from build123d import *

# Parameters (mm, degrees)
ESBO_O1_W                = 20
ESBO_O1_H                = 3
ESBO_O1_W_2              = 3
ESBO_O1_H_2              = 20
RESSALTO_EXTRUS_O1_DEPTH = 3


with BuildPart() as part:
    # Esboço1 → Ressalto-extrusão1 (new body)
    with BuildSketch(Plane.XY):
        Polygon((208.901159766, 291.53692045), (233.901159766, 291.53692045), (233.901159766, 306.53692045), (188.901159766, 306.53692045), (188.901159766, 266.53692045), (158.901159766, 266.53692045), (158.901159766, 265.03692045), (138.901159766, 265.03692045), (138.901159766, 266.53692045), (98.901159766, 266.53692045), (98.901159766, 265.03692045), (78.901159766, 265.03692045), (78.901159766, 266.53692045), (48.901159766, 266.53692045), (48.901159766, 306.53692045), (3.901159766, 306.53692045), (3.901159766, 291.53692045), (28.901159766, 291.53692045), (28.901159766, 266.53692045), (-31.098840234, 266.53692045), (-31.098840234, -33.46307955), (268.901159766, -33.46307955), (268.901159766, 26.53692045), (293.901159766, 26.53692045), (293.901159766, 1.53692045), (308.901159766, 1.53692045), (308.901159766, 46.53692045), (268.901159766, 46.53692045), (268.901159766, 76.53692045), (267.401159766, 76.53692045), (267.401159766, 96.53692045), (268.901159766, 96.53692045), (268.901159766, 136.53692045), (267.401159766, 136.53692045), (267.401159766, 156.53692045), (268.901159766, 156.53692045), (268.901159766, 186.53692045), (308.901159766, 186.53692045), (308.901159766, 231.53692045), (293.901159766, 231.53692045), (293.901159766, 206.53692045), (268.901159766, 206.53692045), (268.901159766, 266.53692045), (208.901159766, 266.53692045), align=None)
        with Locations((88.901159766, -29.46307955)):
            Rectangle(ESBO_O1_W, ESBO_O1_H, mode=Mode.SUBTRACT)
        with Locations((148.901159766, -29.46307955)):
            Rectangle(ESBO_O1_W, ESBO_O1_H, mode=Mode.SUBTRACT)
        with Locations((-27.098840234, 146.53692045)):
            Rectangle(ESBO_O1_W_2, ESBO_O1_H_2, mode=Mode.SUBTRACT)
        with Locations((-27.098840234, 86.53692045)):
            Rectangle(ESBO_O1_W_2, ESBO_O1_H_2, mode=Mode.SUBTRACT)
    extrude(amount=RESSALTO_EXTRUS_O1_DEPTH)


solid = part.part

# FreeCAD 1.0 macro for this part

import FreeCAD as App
import Part
import Sketcher
Q = App.Units.Quantity

doc = App.newDocument("Part")
params = doc.addObject("Spreadsheet::Sheet", "Params")
for row, (alias, value) in enumerate([
    ("sketch1_width", "25 mm"),
    ("sketch1_width2", "45 mm"),
    ("sketch1_width3", "30 mm"),
    ("sketch1_width4", "20 mm"),
    ("sketch1_width5", "40 mm"),
    ("pad1_length", "3 mm"),
], start=1):
    params.set(f"A{row}", alias)
    params.set(f"B{row}", "=" + value)
    params.setAlias(f"B{row}", alias)

body = doc.addObject("PartDesign::Body", "Body")

sketch1 = body.newObject("Sketcher::SketchObject", "Sketch")
sketch1.AttachmentSupport = (doc.getObject("XY_Plane"), [""])
sketch1.MapMode = "FlatFace"
sketch1.addGeometry(Part.LineSegment(App.Vector(208.9, 291.5, 0), App.Vector(233.9, 291.5, 0)), False)
sketch1.addGeometry(Part.LineSegment(App.Vector(233.9, 291.5, 0), App.Vector(233.9, 306.5, 0)), False)
sketch1.addGeometry(Part.LineSegment(App.Vector(233.9, 306.5, 0), App.Vector(188.9, 306.5, 0)), False)
sketch1.addGeometry(Part.LineSegment(App.Vector(188.9, 306.5, 0), App.Vector(188.9, 266.5, 0)), False)
sketch1.addGeometry(Part.LineSegment(App.Vector(188.9, 266.5, 0), App.Vector(158.9, 266.5, 0)), False)
sketch1.addGeometry(Part.LineSegment(App.Vector(158.9, 266.5, 0), App.Vector(158.9, 265, 0)), False)
sketch1.addGeometry(Part.LineSegment(App.Vector(158.9, 265, 0), App.Vector(138.9, 265, 0)), False)
sketch1.addGeometry(Part.LineSegment(App.Vector(138.9, 265, 0), App.Vector(138.9, 266.5, 0)), False)
sketch1.addGeometry(Part.LineSegment(App.Vector(138.9, 266.5, 0), App.Vector(98.9, 266.5, 0)), False)
sketch1.addGeometry(Part.LineSegment(App.Vector(98.9, 266.5, 0), App.Vector(98.9, 265, 0)), False)
sketch1.addGeometry(Part.LineSegment(App.Vector(98.9, 265, 0), App.Vector(78.9, 265, 0)), False)
sketch1.addGeometry(Part.LineSegment(App.Vector(78.9, 265, 0), App.Vector(78.9, 266.5, 0)), False)
sketch1.addGeometry(Part.LineSegment(App.Vector(78.9, 266.5, 0), App.Vector(48.9, 266.5, 0)), False)
sketch1.addGeometry(Part.LineSegment(App.Vector(48.9, 266.5, 0), App.Vector(48.9, 306.5, 0)), False)
sketch1.addGeometry(Part.LineSegment(App.Vector(48.9, 306.5, 0), App.Vector(3.9, 306.5, 0)), False)
sketch1.addGeometry(Part.LineSegment(App.Vector(3.9, 306.5, 0), App.Vector(3.9, 291.5, 0)), False)
sketch1.addGeometry(Part.LineSegment(App.Vector(3.9, 291.5, 0), App.Vector(28.9, 291.5, 0)), False)
sketch1.addGeometry(Part.LineSegment(App.Vector(28.9, 291.5, 0), App.Vector(28.9, 266.5, 0)), False)
sketch1.addGeometry(Part.LineSegment(App.Vector(28.9, 266.5, 0), App.Vector(-31.1, 266.5, 0)), False)
sketch1.addGeometry(Part.LineSegment(App.Vector(-31.1, 266.5, 0), App.Vector(-31.1, -33.5, 0)), False)
sketch1.addGeometry(Part.LineSegment(App.Vector(-31.1, -33.5, 0), App.Vector(268.9, -33.5, 0)), False)
sketch1.addGeometry(Part.LineSegment(App.Vector(268.9, -33.5, 0), App.Vector(268.9, 26.5, 0)), False)
sketch1.addGeometry(Part.LineSegment(App.Vector(268.9, 26.5, 0), App.Vector(293.9, 26.5, 0)), False)
sketch1.addGeometry(Part.LineSegment(App.Vector(293.9, 26.5, 0), App.Vector(293.9, 1.5, 0)), False)
sketch1.addGeometry(Part.LineSegment(App.Vector(293.9, 1.5, 0), App.Vector(308.9, 1.5, 0)), False)
sketch1.addGeometry(Part.LineSegment(App.Vector(308.9, 1.5, 0), App.Vector(308.9, 46.5, 0)), False)
sketch1.addGeometry(Part.LineSegment(App.Vector(308.9, 46.5, 0), App.Vector(268.9, 46.5, 0)), False)
sketch1.addGeometry(Part.LineSegment(App.Vector(268.9, 46.5, 0), App.Vector(268.9, 76.5, 0)), False)
sketch1.addGeometry(Part.LineSegment(App.Vector(268.9, 76.5, 0), App.Vector(267.4, 76.5, 0)), False)
sketch1.addGeometry(Part.LineSegment(App.Vector(267.4, 76.5, 0), App.Vector(267.4, 96.5, 0)), False)
sketch1.addGeometry(Part.LineSegment(App.Vector(267.4, 96.5, 0), App.Vector(268.9, 96.5, 0)), False)
sketch1.addGeometry(Part.LineSegment(App.Vector(268.9, 96.5, 0), App.Vector(268.9, 136.5, 0)), False)
sketch1.addGeometry(Part.LineSegment(App.Vector(268.9, 136.5, 0), App.Vector(267.4, 136.5, 0)), False)
sketch1.addGeometry(Part.LineSegment(App.Vector(267.4, 136.5, 0), App.Vector(267.4, 156.5, 0)), False)
sketch1.addGeometry(Part.LineSegment(App.Vector(267.4, 156.5, 0), App.Vector(268.9, 156.5, 0)), False)
sketch1.addGeometry(Part.LineSegment(App.Vector(268.9, 156.5, 0), App.Vector(268.9, 186.5, 0)), False)
sketch1.addGeometry(Part.LineSegment(App.Vector(268.9, 186.5, 0), App.Vector(308.9, 186.5, 0)), False)
sketch1.addGeometry(Part.LineSegment(App.Vector(308.9, 186.5, 0), App.Vector(308.9, 231.5, 0)), False)
sketch1.addGeometry(Part.LineSegment(App.Vector(308.9, 231.5, 0), App.Vector(293.9, 231.5, 0)), False)
sketch1.addGeometry(Part.LineSegment(App.Vector(293.9, 231.5, 0), App.Vector(293.9, 206.5, 0)), False)
sketch1.addGeometry(Part.LineSegment(App.Vector(293.9, 206.5, 0), App.Vector(268.9, 206.5, 0)), False)
sketch1.addGeometry(Part.LineSegment(App.Vector(268.9, 206.5, 0), App.Vector(268.9, 266.5, 0)), False)
sketch1.addGeometry(Part.LineSegment(App.Vector(268.9, 266.5, 0), App.Vector(208.9, 266.5, 0)), False)
sketch1.addGeometry(Part.LineSegment(App.Vector(208.9, 266.5, 0), App.Vector(208.9, 291.5, 0)), False)
sketch1.addGeometry(Part.LineSegment(App.Vector(98.9, -31, 0), App.Vector(78.9, -31, 0)), False)
sketch1.addGeometry(Part.LineSegment(App.Vector(78.9, -31, 0), App.Vector(78.9, -28, 0)), False)
sketch1.addGeometry(Part.LineSegment(App.Vector(78.9, -28, 0), App.Vector(98.9, -28, 0)), False)
sketch1.addGeometry(Part.LineSegment(App.Vector(98.9, -28, 0), App.Vector(98.9, -31, 0)), False)
sketch1.addGeometry(Part.LineSegment(App.Vector(158.9, -31, 0), App.Vector(138.9, -31, 0)), False)
sketch1.addGeometry(Part.LineSegment(App.Vector(138.9, -31, 0), App.Vector(138.9, -28, 0)), False)
sketch1.addGeometry(Part.LineSegment(App.Vector(138.9, -28, 0), App.Vector(158.9, -28, 0)), False)
sketch1.addGeometry(Part.LineSegment(App.Vector(158.9, -28, 0), App.Vector(158.9, -31, 0)), False)
sketch1.addGeometry(Part.LineSegment(App.Vector(-25.6, 76.5, 0), App.Vector(-28.6, 76.5, 0)), False)
sketch1.addGeometry(Part.LineSegment(App.Vector(-28.6, 76.5, 0), App.Vector(-28.6, 96.5, 0)), False)
sketch1.addGeometry(Part.LineSegment(App.Vector(-28.6, 96.5, 0), App.Vector(-25.6, 96.5, 0)), False)
sketch1.addGeometry(Part.LineSegment(App.Vector(-25.6, 96.5, 0), App.Vector(-25.6, 76.5, 0)), False)
sketch1.addGeometry(Part.LineSegment(App.Vector(-25.6, 136.5, 0), App.Vector(-28.6, 136.5, 0)), False)
sketch1.addGeometry(Part.LineSegment(App.Vector(-28.6, 136.5, 0), App.Vector(-28.6, 156.5, 0)), False)
sketch1.addGeometry(Part.LineSegment(App.Vector(-28.6, 156.5, 0), App.Vector(-25.6, 156.5, 0)), False)
sketch1.addGeometry(Part.LineSegment(App.Vector(-25.6, 156.5, 0), App.Vector(-25.6, 136.5, 0)), False)
sketch1.addConstraint(Sketcher.Constraint("Coincident", 0, 2, 1, 1))
sketch1.addConstraint(Sketcher.Constraint("Coincident", 1, 2, 2, 1))
sketch1.addConstraint(Sketcher.Constraint("Coincident", 2, 2, 3, 1))
sketch1.addConstraint(Sketcher.Constraint("Coincident", 3, 2, 4, 1))
sketch1.addConstraint(Sketcher.Constraint("Coincident", 4, 2, 5, 1))
sketch1.addConstraint(Sketcher.Constraint("Coincident", 5, 2, 6, 1))
sketch1.addConstraint(Sketcher.Constraint("Coincident", 6, 2, 7, 1))
sketch1.addConstraint(Sketcher.Constraint("Coincident", 7, 2, 8, 1))
sketch1.addConstraint(Sketcher.Constraint("Coincident", 8, 2, 9, 1))
sketch1.addConstraint(Sketcher.Constraint("Coincident", 9, 2, 10, 1))
sketch1.addConstraint(Sketcher.Constraint("Coincident", 10, 2, 11, 1))
sketch1.addConstraint(Sketcher.Constraint("Coincident", 11, 2, 12, 1))
sketch1.addConstraint(Sketcher.Constraint("Coincident", 12, 2, 13, 1))
sketch1.addConstraint(Sketcher.Constraint("Coincident", 13, 2, 14, 1))
sketch1.addConstraint(Sketcher.Constraint("Coincident", 14, 2, 15, 1))
sketch1.addConstraint(Sketcher.Constraint("Coincident", 15, 2, 16, 1))
sketch1.addConstraint(Sketcher.Constraint("Coincident", 16, 2, 17, 1))
sketch1.addConstraint(Sketcher.Constraint("Coincident", 17, 2, 18, 1))
sketch1.addConstraint(Sketcher.Constraint("Coincident", 18, 2, 19, 1))
sketch1.addConstraint(Sketcher.Constraint("Coincident", 19, 2, 20, 1))
sketch1.addConstraint(Sketcher.Constraint("Coincident", 20, 2, 21, 1))
sketch1.addConstraint(Sketcher.Constraint("Coincident", 21, 2, 22, 1))
sketch1.addConstraint(Sketcher.Constraint("Coincident", 22, 2, 23, 1))
sketch1.addConstraint(Sketcher.Constraint("Coincident", 23, 2, 24, 1))
sketch1.addConstraint(Sketcher.Constraint("Coincident", 24, 2, 25, 1))
sketch1.addConstraint(Sketcher.Constraint("Coincident", 25, 2, 26, 1))
sketch1.addConstraint(Sketcher.Constraint("Coincident", 26, 2, 27, 1))
sketch1.addConstraint(Sketcher.Constraint("Coincident", 27, 2, 28, 1))
sketch1.addConstraint(Sketcher.Constraint("Coincident", 28, 2, 29, 1))
sketch1.addConstraint(Sketcher.Constraint("Coincident", 29, 2, 30, 1))
sketch1.addConstraint(Sketcher.Constraint("Coincident", 30, 2, 31, 1))
sketch1.addConstraint(Sketcher.Constraint("Coincident", 31, 2, 32, 1))
sketch1.addConstraint(Sketcher.Constraint("Coincident", 32, 2, 33, 1))
sketch1.addConstraint(Sketcher.Constraint("Coincident", 33, 2, 34, 1))
sketch1.addConstraint(Sketcher.Constraint("Coincident", 34, 2, 35, 1))
sketch1.addConstraint(Sketcher.Constraint("Coincident", 35, 2, 36, 1))
sketch1.addConstraint(Sketcher.Constraint("Coincident", 36, 2, 37, 1))
sketch1.addConstraint(Sketcher.Constraint("Coincident", 37, 2, 38, 1))
sketch1.addConstraint(Sketcher.Constraint("Coincident", 38, 2, 39, 1))
sketch1.addConstraint(Sketcher.Constraint("Coincident", 39, 2, 40, 1))
sketch1.addConstraint(Sketcher.Constraint("Coincident", 40, 2, 41, 1))
sketch1.addConstraint(Sketcher.Constraint("Coincident", 41, 2, 42, 1))
sketch1.addConstraint(Sketcher.Constraint("Coincident", 42, 2, 43, 1))
sketch1.addConstraint(Sketcher.Constraint("Coincident", 43, 2, 0, 1))
sketch1.addConstraint(Sketcher.Constraint("Coincident", 44, 2, 45, 1))
sketch1.addConstraint(Sketcher.Constraint("Coincident", 45, 2, 46, 1))
sketch1.addConstraint(Sketcher.Constraint("Coincident", 46, 2, 47, 1))
sketch1.addConstraint(Sketcher.Constraint("Coincident", 47, 2, 44, 1))
sketch1.addConstraint(Sketcher.Constraint("Coincident", 48, 2, 49, 1))
sketch1.addConstraint(Sketcher.Constraint("Coincident", 49, 2, 50, 1))
sketch1.addConstraint(Sketcher.Constraint("Coincident", 50, 2, 51, 1))
sketch1.addConstraint(Sketcher.Constraint("Coincident", 51, 2, 48, 1))
sketch1.addConstraint(Sketcher.Constraint("Coincident", 52, 2, 53, 1))
sketch1.addConstraint(Sketcher.Constraint("Coincident", 53, 2, 54, 1))
sketch1.addConstraint(Sketcher.Constraint("Coincident", 54, 2, 55, 1))
sketch1.addConstraint(Sketcher.Constraint("Coincident", 55, 2, 52, 1))
sketch1.addConstraint(Sketcher.Constraint("Coincident", 56, 2, 57, 1))
sketch1.addConstraint(Sketcher.Constraint("Coincident", 57, 2, 58, 1))
sketch1.addConstraint(Sketcher.Constraint("Coincident", 58, 2, 59, 1))
sketch1.addConstraint(Sketcher.Constraint("Coincident", 59, 2, 56, 1))
sketch1.addConstraint(Sketcher.Constraint("Horizontal", 0))
sketch1.addConstraint(Sketcher.Constraint("Vertical", 1))
sketch1.addConstraint(Sketcher.Constraint("Horizontal", 2))
sketch1.addConstraint(Sketcher.Constraint("Vertical", 3))
sketch1.addConstraint(Sketcher.Constraint("Horizontal", 4))
sketch1.addConstraint(Sketcher.Constraint("Vertical", 5))
sketch1.addConstraint(Sketcher.Constraint("Horizontal", 6))
sketch1.addConstraint(Sketcher.Constraint("Vertical", 7))
sketch1.addConstraint(Sketcher.Constraint("Horizontal", 8))
sketch1.addConstraint(Sketcher.Constraint("Vertical", 9))
sketch1.addConstraint(Sketcher.Constraint("Horizontal", 10))
sketch1.addConstraint(Sketcher.Constraint("Vertical", 11))
sketch1.addConstraint(Sketcher.Constraint("Horizontal", 12))
sketch1.addConstraint(Sketcher.Constraint("Vertical", 13))
sketch1.addConstraint(Sketcher.Constraint("Horizontal", 14))
sketch1.addConstraint(Sketcher.Constraint("Vertical", 15))
sketch1.addConstraint(Sketcher.Constraint("Horizontal", 16))
sketch1.addConstraint(Sketcher.Constraint("Vertical", 17))
sketch1.addConstraint(Sketcher.Constraint("Horizontal", 18))
sketch1.addConstraint(Sketcher.Constraint("Vertical", 19))
sketch1.addConstraint(Sketcher.Constraint("Horizontal", 20))
sketch1.addConstraint(Sketcher.Constraint("Vertical", 21))
sketch1.addConstraint(Sketcher.Constraint("Horizontal", 22))
sketch1.addConstraint(Sketcher.Constraint("Vertical", 23))
sketch1.addConstraint(Sketcher.Constraint("Horizontal", 24))
sketch1.addConstraint(Sketcher.Constraint("Vertical", 25))
sketch1.addConstraint(Sketcher.Constraint("Horizontal", 26))
sketch1.addConstraint(Sketcher.Constraint("Vertical", 27))
sketch1.addConstraint(Sketcher.Constraint("Horizontal", 28))
sketch1.addConstraint(Sketcher.Constraint("Vertical", 29))
sketch1.addConstraint(Sketcher.Constraint("Horizontal", 30))
sketch1.addConstraint(Sketcher.Constraint("Vertical", 31))
sketch1.addConstraint(Sketcher.Constraint("Horizontal", 32))
sketch1.addConstraint(Sketcher.Constraint("Vertical", 33))
sketch1.addConstraint(Sketcher.Constraint("Horizontal", 34))
sketch1.addConstraint(Sketcher.Constraint("Vertical", 35))
sketch1.addConstraint(Sketcher.Constraint("Horizontal", 36))
sketch1.addConstraint(Sketcher.Constraint("Vertical", 37))
sketch1.addConstraint(Sketcher.Constraint("Horizontal", 38))
sketch1.addConstraint(Sketcher.Constraint("Vertical", 39))
sketch1.addConstraint(Sketcher.Constraint("Horizontal", 40))
sketch1.addConstraint(Sketcher.Constraint("Vertical", 41))
sketch1.addConstraint(Sketcher.Constraint("Horizontal", 42))
sketch1.addConstraint(Sketcher.Constraint("Vertical", 43))
sketch1.addConstraint(Sketcher.Constraint("Horizontal", 44))
sketch1.addConstraint(Sketcher.Constraint("Vertical", 45))
sketch1.addConstraint(Sketcher.Constraint("Horizontal", 46))
sketch1.addConstraint(Sketcher.Constraint("Vertical", 47))
sketch1.addConstraint(Sketcher.Constraint("Horizontal", 48))
sketch1.addConstraint(Sketcher.Constraint("Vertical", 49))
sketch1.addConstraint(Sketcher.Constraint("Horizontal", 50))
sketch1.addConstraint(Sketcher.Constraint("Vertical", 51))
sketch1.addConstraint(Sketcher.Constraint("Horizontal", 52))
sketch1.addConstraint(Sketcher.Constraint("Vertical", 53))
sketch1.addConstraint(Sketcher.Constraint("Horizontal", 54))
sketch1.addConstraint(Sketcher.Constraint("Vertical", 55))
sketch1.addConstraint(Sketcher.Constraint("Horizontal", 56))
sketch1.addConstraint(Sketcher.Constraint("Vertical", 57))
sketch1.addConstraint(Sketcher.Constraint("Horizontal", 58))
sketch1.addConstraint(Sketcher.Constraint("Vertical", 59))
sketch1.addConstraint(Sketcher.Constraint("Horizontal", 4, 2, 7, 2))
sketch1.addConstraint(Sketcher.Constraint("Horizontal", 6, 2, 9, 2))
sketch1.addConstraint(Sketcher.Constraint("Horizontal", 8, 2, 11, 2))
sketch1.addConstraint(Sketcher.Constraint("Horizontal", 2, 2, 13, 2))
sketch1.addConstraint(Sketcher.Constraint("Horizontal", 0, 2, 15, 2))
sketch1.addConstraint(Sketcher.Constraint("Horizontal", 12, 2, 17, 2))
sketch1.addConstraint(Sketcher.Constraint("Horizontal", 18, 2, 41, 2))
sketch1.addConstraint(Sketcher.Constraint("Horizontal", 47, 2, 48, 2))
sketch1.addConstraint(Sketcher.Constraint("Horizontal", 46, 2, 49, 2))
sketch1.addConstraint(Sketcher.Constraint("Horizontal", 28, 2, 52, 2))
sketch1.addConstraint(Sketcher.Constraint("Horizontal", 30, 2, 53, 2))
sketch1.addConstraint(Sketcher.Constraint("Horizontal", 32, 2, 56, 2))
sketch1.addConstraint(Sketcher.Constraint("Horizontal", 34, 2, 57, 2))
sketch1.addConstraint(Sketcher.Constraint("Vertical", 21, 2, 26, 2))
sketch1.addConstraint(Sketcher.Constraint("Vertical", 27, 2, 30, 2))
sketch1.addConstraint(Sketcher.Constraint("Vertical", 29, 2, 32, 2))
sketch1.addConstraint(Sketcher.Constraint("Vertical", 31, 2, 34, 2))
sketch1.addConstraint(Sketcher.Constraint("Vertical", 25, 2, 36, 2))
sketch1.addConstraint(Sketcher.Constraint("Vertical", 23, 2, 38, 2))
sketch1.addConstraint(Sketcher.Constraint("Vertical", 35, 2, 40, 2))
sketch1.addConstraint(Sketcher.Constraint("Vertical", 11, 2, 44, 2))
sketch1.addConstraint(Sketcher.Constraint("Vertical", 9, 2, 46, 2))
sketch1.addConstraint(Sketcher.Constraint("Vertical", 7, 2, 48, 2))
sketch1.addConstraint(Sketcher.Constraint("Vertical", 5, 2, 50, 2))
sketch1.addConstraint(Sketcher.Constraint("Vertical", 53, 2, 56, 2))
sketch1.addConstraint(Sketcher.Constraint("Vertical", 55, 2, 58, 2))
sketch1.addConstraint(Sketcher.Constraint("Equal", 6, 10))
sketch1.addConstraint(Sketcher.Constraint("Equal", 4, 12))
sketch1.addConstraint(Sketcher.Constraint("Equal", 2, 14))
sketch1.addConstraint(Sketcher.Constraint("Equal", 0, 16))
sketch1.addConstraint(Sketcher.Constraint("Equal", 16, 22))
sketch1.addConstraint(Sketcher.Constraint("Equal", 8, 26))
sketch1.addConstraint(Sketcher.Constraint("Equal", 18, 42))
sketch1.addConstraint(Sketcher.Constraint("Equal", 38, 1))
sketch1.addConstraint(Sketcher.Constraint("Equal", 36, 3))
sketch1.addConstraint(Sketcher.Constraint("Equal", 34, 5))
sketch1.addConstraint(Sketcher.Constraint("Equal", 20, 19))
sketch1.addConstraint(Sketcher.Constraint("Equal", 42, 21))
sketch1.addConstraint(Sketcher.Constraint("Equal", 17, 23))
sketch1.addConstraint(Sketcher.Constraint("Equal", 14, 25))
sketch1.addConstraint(Sketcher.Constraint("Equal", 12, 27))
sketch1.addConstraint(Sketcher.Constraint("Equal", 50, 29))
sketch1.addConstraint(Sketcher.Constraint("Equal", 13, 31))
sketch1.addConstraint(Sketcher.Constraint("Equal", 29, 33))
sketch1.addConstraint(Sketcher.Constraint("Equal", 27, 35))
sketch1.addConstraint(Sketcher.Constraint("Equal", 25, 37))
sketch1.addConstraint(Sketcher.Constraint("Equal", 23, 39))
sketch1.addConstraint(Sketcher.Constraint("Equal", 58, 45))
sketch1.addConstraint(Sketcher.Constraint("DistanceX", 0, 1, 0, 2, Q("25 mm")))
sketch1.addConstraint(Sketcher.Constraint("DistanceX", 2, 2, 2, 1, Q("45 mm")))
sketch1.addConstraint(Sketcher.Constraint("DistanceX", 4, 2, 4, 1, Q("30 mm")))
sketch1.addConstraint(Sketcher.Constraint("DistanceX", 6, 2, 6, 1, Q("20 mm")))
sketch1.addConstraint(Sketcher.Constraint("DistanceX", 8, 2, 8, 1, Q("40 mm")))
sketch1.addConstraint(Sketcher.Constraint("DistanceX", 18, 2, 18, 1, Q("60 mm")))
sketch1.addConstraint(Sketcher.Constraint("DistanceX", 52, 2, 52, 1, Q("3 mm")))
sketch1.addConstraint(Sketcher.Constraint("DistanceX", 28, 2, 28, 1, Q("1.5 mm")))
sketch1.addConstraint(Sketcher.Constraint("DistanceY", 19, 2, 44, 2, Q("2.5 mm")))
sketch1.addConstraint(Sketcher.Constraint("DistanceX", 19, 2, 52, 2, Q("2.5 mm")))
sketch1.addConstraint(Sketcher.Constraint("DistanceX", -1, 1, 0, 2, Q("233.90116 mm")))
sketch1.addConstraint(Sketcher.Constraint("DistanceY", -1, 1, 0, 2, Q("291.53692 mm")))
sketch1.setExpression("Constraints[168]", "Params.sketch1_width")
sketch1.setExpression("Constraints[169]", "Params.sketch1_width2")
sketch1.setExpression("Constraints[170]", "Params.sketch1_width3")
sketch1.setExpression("Constraints[171]", "Params.sketch1_width4")
sketch1.setExpression("Constraints[172]", "Params.sketch1_width5")
pad1 = body.newObject("PartDesign::Pad", "Pad")
pad1.Profile = sketch1
pad1.setExpression("Length", "Params.pad1_length")

doc.recompute()
